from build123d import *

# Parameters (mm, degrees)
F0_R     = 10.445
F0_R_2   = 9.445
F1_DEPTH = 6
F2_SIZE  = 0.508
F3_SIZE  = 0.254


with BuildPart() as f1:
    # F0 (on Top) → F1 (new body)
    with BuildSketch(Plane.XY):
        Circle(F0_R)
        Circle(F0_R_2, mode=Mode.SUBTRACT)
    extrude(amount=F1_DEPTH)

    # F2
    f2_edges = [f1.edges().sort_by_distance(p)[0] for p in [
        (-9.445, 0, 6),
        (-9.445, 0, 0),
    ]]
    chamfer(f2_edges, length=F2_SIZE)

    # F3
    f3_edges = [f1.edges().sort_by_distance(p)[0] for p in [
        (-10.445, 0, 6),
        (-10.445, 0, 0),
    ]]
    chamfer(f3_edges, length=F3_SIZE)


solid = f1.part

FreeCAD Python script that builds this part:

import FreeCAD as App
import Part
import Sketcher

V = App.Vector
Q = App.Units.Quantity


def edges_at(feature, points):
    """Names of the edges that pass closest to the given points."""
    edges = feature.Shape.Edges
    near = lambda p: min(range(len(edges)), key=lambda i: edges[i].distToShape(Part.Vertex(*p))[0])
    return sorted({f"Edge{near(p) + 1}" for p in points})

doc = App.newDocument("Part")
body = doc.addObject("PartDesign::Body", "Body")

# Sketch on XY plane
sketch1 = doc.addObject("Sketcher::SketchObject", "Sketch")
body.addObject(sketch1)
sketch1.AttachmentSupport = (doc.XY_Plane, [""])
sketch1.MapMode = "FlatFace"
sketch1.addGeometry(Part.Circle(V(0, 0, 0), V(0, 0, 1), 10), False)
sketch1.addGeometry(Part.Circle(V(0, 0, 0), V(0, 0, 1), 9), False)
sketch1.addConstraint(Sketcher.Constraint("Coincident", 0, 3, -1, 1))
sketch1.addConstraint(Sketcher.Constraint("Coincident", 1, 3, -1, 1))
sketch1.addConstraint(Sketcher.Constraint("Diameter", 0, Q("20.89 mm")))
sketch1.addConstraint(Sketcher.Constraint("Diameter", 1, Q("18.89 mm")))
pad1 = doc.addObject("PartDesign::Pad", "Pad")
body.addObject(pad1)
pad1.Profile = sketch1
pad1.Length = 6
doc.recompute()

chamfer = doc.addObject("PartDesign::Chamfer", "Chamfer")
body.addObject(chamfer)
chamfer.Base = (pad1, edges_at(pad1, [(-9.445, 0, 6), (-9.445, 0, 0)]))
chamfer.Size = Q("0.02 in")
doc.recompute()

chamfer2 = doc.addObject("PartDesign::Chamfer", "Chamfer001")
body.addObject(chamfer2)
chamfer2.Base = (chamfer, edges_at(chamfer, [(-10.445, 0, 6), (-10.445, 0, 0)]))
chamfer2.Size = Q("0.01 in")

doc.recompute()
